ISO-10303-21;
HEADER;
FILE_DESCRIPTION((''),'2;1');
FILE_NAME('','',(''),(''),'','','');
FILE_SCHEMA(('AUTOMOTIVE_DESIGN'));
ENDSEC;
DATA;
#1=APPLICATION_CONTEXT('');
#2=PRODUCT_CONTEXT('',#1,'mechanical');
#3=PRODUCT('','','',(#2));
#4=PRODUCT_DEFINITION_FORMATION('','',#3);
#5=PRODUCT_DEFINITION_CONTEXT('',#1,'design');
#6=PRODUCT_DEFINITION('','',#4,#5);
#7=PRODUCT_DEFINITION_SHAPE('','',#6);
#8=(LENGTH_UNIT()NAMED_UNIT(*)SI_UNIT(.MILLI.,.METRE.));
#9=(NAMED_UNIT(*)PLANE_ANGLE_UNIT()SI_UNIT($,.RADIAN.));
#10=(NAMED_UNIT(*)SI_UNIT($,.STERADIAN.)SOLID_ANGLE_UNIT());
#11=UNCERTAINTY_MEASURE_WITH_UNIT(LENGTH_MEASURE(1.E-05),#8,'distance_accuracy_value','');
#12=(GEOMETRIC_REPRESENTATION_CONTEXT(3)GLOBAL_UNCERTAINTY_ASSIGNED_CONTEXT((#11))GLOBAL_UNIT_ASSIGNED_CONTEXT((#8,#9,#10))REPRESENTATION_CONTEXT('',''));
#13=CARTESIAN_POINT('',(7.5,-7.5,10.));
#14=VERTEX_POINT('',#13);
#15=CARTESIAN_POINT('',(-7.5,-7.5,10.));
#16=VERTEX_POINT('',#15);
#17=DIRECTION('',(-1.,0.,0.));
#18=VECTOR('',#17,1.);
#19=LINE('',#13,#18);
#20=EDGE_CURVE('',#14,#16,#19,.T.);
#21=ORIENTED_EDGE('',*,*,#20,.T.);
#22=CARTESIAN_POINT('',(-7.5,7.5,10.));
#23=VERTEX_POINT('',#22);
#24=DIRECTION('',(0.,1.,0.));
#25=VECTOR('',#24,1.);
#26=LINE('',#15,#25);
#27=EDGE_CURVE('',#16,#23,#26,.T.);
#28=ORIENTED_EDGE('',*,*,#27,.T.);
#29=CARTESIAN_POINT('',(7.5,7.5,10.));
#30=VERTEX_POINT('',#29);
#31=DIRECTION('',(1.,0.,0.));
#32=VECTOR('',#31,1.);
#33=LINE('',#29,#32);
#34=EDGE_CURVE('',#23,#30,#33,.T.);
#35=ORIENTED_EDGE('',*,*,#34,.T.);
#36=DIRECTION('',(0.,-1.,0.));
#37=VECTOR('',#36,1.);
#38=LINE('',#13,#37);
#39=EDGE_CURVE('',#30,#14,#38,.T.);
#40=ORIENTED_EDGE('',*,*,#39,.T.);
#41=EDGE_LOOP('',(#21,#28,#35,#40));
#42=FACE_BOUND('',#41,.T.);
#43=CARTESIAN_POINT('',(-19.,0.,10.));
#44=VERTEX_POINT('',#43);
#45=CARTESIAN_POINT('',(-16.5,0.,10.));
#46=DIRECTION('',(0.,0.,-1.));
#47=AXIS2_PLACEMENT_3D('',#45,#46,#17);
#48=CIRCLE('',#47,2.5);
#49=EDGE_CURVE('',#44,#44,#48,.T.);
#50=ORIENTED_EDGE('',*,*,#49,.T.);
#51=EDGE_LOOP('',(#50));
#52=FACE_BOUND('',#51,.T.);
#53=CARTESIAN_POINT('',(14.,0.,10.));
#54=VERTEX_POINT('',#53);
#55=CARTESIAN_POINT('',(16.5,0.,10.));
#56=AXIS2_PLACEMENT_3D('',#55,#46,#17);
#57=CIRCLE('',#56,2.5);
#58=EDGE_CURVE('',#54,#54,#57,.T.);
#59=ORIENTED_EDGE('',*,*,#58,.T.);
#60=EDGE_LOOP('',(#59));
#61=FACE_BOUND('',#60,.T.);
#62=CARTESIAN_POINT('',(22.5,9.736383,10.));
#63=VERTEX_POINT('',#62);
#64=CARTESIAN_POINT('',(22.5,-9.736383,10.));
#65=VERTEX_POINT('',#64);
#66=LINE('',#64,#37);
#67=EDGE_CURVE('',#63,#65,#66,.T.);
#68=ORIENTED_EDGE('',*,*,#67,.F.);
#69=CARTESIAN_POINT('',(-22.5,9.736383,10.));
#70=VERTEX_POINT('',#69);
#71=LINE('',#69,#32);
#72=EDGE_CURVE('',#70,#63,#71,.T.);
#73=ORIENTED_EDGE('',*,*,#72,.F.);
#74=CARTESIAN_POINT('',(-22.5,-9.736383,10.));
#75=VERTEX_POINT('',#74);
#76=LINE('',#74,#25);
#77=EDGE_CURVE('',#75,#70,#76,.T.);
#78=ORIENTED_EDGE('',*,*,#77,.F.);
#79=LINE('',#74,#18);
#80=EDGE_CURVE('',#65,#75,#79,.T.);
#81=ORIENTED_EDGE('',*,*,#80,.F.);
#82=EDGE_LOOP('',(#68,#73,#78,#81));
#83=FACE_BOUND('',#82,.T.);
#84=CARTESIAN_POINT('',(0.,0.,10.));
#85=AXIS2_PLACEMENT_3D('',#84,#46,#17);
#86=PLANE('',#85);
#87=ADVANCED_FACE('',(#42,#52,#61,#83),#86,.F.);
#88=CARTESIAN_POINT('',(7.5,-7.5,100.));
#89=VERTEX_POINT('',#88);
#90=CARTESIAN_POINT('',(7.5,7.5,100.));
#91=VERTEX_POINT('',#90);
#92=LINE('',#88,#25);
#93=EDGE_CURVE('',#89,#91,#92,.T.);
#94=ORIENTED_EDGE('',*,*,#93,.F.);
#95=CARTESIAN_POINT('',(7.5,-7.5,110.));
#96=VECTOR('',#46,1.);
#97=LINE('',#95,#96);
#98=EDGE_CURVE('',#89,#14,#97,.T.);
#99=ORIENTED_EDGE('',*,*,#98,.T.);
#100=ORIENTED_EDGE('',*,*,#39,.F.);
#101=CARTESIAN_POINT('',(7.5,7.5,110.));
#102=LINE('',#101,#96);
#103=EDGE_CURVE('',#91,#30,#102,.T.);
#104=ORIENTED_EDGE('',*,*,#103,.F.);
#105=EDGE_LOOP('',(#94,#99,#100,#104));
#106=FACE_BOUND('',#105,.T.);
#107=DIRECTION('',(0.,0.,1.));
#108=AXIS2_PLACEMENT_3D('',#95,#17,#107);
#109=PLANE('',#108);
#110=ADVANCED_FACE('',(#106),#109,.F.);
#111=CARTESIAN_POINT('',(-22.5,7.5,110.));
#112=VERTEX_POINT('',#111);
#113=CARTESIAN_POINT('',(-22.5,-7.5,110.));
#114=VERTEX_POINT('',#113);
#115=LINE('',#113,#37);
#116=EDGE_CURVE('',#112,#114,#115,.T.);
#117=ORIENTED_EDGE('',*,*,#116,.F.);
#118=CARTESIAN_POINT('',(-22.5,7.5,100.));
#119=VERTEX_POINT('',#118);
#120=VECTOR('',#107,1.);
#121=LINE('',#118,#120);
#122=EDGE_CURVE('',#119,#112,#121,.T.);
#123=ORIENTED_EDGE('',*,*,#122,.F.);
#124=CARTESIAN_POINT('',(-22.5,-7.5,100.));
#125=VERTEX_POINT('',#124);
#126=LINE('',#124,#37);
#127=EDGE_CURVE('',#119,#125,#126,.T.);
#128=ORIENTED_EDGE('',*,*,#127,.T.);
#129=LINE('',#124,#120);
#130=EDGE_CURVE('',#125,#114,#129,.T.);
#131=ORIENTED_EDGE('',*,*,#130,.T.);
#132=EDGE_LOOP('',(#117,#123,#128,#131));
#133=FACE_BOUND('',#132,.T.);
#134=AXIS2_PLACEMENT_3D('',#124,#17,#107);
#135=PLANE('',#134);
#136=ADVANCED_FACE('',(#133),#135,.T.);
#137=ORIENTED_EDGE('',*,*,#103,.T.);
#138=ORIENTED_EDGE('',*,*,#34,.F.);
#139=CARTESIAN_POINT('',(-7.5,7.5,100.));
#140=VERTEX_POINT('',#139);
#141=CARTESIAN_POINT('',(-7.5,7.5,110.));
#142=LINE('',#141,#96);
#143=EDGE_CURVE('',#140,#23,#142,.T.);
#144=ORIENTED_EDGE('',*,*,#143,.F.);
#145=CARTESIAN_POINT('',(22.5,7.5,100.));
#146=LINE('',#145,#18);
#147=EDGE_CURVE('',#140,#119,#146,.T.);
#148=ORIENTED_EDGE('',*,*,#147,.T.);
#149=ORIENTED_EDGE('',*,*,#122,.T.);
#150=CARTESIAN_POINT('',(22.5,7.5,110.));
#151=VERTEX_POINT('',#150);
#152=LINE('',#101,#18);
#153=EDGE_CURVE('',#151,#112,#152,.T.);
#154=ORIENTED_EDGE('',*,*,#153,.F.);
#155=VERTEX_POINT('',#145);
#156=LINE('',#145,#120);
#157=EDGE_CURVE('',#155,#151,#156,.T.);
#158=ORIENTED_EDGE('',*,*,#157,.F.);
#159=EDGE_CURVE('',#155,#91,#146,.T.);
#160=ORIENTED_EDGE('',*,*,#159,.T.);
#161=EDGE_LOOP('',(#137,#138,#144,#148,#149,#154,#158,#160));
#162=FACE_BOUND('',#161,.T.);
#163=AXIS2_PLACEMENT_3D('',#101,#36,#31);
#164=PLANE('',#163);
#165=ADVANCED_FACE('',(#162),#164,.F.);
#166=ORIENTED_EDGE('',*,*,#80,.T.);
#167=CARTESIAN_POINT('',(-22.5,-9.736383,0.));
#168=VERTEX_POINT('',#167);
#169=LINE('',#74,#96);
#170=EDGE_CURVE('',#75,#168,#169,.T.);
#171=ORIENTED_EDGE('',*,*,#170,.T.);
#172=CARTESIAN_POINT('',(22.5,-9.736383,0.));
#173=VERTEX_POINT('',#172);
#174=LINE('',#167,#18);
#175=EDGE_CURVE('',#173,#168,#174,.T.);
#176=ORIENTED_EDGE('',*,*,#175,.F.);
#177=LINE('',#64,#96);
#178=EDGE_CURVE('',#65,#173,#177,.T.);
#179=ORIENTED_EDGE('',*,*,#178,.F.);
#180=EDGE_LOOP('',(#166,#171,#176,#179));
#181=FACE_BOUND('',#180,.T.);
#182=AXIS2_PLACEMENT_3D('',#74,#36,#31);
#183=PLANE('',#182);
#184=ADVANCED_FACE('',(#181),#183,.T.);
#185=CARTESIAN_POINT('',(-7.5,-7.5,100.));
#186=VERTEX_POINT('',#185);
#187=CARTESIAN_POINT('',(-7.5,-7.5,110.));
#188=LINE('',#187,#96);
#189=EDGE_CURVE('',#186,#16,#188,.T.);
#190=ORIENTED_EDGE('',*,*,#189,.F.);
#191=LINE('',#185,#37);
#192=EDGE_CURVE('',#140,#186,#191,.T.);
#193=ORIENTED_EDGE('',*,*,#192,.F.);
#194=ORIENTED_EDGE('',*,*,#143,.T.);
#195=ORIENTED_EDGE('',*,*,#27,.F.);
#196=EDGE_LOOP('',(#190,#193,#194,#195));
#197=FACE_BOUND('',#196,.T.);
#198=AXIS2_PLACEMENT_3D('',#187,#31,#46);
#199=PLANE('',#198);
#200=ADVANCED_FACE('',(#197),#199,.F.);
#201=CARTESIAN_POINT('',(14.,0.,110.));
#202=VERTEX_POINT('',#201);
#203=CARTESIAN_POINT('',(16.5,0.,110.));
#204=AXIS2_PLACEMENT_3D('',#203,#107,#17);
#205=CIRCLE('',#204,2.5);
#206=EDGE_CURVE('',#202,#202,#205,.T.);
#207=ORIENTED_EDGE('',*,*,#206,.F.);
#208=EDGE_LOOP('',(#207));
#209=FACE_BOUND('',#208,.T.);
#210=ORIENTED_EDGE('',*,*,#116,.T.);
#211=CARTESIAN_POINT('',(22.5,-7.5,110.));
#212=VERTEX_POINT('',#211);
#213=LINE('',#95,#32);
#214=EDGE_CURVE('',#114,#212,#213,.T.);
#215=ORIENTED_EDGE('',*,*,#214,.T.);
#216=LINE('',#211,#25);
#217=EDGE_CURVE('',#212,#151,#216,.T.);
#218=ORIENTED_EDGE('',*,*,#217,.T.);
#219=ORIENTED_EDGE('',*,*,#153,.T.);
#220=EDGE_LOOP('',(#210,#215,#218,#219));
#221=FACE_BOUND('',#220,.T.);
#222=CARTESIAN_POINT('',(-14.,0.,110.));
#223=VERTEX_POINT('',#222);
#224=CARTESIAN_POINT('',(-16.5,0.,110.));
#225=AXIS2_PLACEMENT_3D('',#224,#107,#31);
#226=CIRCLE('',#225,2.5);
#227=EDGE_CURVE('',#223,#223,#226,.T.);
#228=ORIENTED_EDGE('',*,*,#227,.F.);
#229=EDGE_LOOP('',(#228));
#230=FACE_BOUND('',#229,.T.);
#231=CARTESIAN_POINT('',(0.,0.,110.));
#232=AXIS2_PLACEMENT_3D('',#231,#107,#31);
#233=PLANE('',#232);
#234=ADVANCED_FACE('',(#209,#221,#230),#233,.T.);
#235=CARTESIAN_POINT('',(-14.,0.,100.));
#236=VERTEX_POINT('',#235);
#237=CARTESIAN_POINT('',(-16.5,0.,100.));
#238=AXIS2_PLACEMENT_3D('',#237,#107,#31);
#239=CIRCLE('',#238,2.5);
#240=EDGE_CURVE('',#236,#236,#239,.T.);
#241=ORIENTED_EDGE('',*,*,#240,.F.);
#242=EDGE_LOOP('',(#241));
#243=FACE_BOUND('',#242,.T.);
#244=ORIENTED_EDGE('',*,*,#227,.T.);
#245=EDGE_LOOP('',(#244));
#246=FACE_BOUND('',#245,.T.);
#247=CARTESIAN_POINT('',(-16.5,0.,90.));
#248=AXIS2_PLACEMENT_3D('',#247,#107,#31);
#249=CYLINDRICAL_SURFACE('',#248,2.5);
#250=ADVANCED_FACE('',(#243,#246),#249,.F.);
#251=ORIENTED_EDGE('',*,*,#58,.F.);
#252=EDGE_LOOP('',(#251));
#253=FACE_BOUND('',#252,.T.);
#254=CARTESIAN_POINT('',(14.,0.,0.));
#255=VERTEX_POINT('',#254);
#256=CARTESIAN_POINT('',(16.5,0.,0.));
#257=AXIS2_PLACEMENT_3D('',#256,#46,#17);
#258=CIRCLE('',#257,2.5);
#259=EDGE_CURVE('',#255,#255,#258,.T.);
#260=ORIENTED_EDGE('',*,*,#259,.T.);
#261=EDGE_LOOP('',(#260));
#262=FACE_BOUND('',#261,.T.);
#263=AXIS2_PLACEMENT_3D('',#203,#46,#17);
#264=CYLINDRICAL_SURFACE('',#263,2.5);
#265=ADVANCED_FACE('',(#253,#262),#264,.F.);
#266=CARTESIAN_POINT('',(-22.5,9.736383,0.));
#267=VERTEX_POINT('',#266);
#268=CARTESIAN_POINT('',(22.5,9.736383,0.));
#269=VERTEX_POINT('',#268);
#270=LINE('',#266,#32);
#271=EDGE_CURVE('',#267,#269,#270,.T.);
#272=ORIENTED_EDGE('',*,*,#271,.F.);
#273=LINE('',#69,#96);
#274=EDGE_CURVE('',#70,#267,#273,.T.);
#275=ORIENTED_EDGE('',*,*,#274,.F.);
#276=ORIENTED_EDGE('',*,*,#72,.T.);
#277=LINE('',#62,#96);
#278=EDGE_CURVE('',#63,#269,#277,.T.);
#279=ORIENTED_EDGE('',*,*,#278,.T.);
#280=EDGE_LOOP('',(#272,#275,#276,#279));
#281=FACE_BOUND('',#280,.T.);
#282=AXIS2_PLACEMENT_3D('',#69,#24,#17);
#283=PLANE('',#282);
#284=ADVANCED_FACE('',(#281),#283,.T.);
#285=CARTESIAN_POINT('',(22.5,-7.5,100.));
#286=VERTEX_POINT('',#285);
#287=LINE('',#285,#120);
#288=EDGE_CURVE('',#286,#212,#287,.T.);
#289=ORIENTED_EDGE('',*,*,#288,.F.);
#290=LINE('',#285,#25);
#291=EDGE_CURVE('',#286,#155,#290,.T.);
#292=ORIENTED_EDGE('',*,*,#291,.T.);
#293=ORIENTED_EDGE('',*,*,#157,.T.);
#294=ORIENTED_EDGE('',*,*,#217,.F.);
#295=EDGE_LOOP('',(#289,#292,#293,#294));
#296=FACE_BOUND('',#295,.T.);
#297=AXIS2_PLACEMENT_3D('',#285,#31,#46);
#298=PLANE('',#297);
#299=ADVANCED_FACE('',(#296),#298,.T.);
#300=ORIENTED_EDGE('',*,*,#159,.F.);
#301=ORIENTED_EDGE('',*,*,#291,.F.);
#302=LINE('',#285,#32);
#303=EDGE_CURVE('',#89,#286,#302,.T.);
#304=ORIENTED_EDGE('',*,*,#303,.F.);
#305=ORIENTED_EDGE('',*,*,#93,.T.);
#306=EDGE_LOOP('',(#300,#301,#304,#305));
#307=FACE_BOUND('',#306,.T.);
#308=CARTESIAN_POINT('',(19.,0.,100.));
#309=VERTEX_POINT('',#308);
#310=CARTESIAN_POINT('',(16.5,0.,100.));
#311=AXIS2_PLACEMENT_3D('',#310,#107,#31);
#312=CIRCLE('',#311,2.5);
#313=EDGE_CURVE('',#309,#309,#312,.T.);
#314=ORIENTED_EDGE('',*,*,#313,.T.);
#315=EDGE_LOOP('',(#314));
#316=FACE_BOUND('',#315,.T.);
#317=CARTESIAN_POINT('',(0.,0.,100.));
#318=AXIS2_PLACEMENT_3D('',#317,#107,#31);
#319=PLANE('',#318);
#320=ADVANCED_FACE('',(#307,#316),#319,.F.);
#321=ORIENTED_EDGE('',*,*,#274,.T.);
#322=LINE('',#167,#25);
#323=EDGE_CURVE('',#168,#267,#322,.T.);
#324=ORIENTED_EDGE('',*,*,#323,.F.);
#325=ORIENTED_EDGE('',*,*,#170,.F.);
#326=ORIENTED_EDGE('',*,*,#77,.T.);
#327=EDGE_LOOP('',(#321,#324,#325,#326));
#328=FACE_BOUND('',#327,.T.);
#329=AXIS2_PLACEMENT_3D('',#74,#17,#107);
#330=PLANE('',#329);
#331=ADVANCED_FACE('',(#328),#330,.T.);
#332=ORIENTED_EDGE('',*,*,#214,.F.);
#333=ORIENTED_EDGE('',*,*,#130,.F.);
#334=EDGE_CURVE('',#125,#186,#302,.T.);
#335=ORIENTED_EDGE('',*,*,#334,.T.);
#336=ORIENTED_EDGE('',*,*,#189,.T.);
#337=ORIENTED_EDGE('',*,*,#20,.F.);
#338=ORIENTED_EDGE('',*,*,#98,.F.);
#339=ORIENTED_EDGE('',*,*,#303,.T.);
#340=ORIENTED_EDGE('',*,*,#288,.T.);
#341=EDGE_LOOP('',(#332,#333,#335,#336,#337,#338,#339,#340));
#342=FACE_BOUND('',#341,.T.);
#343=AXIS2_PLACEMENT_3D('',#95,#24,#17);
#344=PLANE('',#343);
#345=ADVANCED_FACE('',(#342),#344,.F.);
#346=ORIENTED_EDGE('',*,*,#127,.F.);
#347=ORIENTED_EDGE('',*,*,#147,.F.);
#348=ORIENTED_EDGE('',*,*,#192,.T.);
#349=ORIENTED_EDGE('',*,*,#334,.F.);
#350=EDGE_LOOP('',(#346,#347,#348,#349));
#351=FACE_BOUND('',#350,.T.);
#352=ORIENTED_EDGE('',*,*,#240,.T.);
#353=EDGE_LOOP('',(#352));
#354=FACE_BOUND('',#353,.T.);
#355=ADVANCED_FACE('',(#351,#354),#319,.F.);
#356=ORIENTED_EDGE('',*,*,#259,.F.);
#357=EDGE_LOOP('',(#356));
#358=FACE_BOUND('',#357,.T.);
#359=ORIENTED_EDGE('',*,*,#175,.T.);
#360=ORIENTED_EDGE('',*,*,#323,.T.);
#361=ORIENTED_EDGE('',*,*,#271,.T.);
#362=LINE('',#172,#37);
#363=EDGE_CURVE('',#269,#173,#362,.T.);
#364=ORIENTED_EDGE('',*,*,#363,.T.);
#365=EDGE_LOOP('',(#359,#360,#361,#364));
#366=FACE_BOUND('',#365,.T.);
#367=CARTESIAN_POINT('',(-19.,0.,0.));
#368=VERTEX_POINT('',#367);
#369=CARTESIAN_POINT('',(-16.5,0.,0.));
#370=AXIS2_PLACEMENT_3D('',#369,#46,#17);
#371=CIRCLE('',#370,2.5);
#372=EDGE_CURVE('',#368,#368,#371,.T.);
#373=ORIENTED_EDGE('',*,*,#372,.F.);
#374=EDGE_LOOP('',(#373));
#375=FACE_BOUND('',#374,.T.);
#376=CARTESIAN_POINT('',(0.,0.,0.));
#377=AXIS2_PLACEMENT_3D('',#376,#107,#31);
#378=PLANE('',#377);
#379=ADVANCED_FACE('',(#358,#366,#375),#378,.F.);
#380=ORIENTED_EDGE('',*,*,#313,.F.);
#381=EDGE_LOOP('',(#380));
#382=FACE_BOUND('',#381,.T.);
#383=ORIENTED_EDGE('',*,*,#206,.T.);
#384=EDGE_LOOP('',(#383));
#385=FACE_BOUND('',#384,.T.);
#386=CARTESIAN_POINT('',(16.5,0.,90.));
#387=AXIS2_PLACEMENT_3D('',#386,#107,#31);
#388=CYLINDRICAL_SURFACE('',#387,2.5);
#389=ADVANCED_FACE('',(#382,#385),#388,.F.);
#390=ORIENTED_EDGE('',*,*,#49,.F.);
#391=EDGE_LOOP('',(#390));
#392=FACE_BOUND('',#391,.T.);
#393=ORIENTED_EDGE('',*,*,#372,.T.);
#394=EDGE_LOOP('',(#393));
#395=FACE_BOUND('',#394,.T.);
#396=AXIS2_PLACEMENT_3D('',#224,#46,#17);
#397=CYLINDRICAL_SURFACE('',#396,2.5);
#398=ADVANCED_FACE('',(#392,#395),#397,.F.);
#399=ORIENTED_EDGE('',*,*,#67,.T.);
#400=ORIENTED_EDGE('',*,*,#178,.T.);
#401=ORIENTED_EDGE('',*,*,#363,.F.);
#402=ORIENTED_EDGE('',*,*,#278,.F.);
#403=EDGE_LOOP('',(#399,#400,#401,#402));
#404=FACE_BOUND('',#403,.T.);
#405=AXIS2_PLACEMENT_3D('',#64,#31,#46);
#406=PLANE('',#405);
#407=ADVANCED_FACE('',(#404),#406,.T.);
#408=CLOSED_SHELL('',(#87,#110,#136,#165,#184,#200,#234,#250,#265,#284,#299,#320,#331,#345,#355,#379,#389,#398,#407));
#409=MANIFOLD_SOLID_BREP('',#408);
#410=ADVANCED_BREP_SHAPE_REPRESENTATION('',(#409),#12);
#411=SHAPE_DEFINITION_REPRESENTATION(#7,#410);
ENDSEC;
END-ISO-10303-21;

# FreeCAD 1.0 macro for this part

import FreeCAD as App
import Part
import Sketcher
from FreeCAD import Vector

doc = App.newDocument("Part")
body = doc.addObject("PartDesign::Body", "Body")

# Sketch on XY plane
sketch1 = body.newObject("Sketcher::SketchObject", "Sketch")
sketch1.AttachmentSupport = (doc.getObject("XY_Plane"), [""])
sketch1.MapMode = "FlatFace"
sketch1.addGeometry([
    Part.LineSegment(Vector(-8, 8, 0), Vector(-8, -8, 0)),
    Part.LineSegment(Vector(-8, -8, 0), Vector(8, -8, 0)),
    Part.LineSegment(Vector(8, -8, 0), Vector(8, 8, 0)),
    Part.LineSegment(Vector(8, 8, 0), Vector(-8, 8, 0)),
], False)
sketch1.addConstraint([
    Sketcher.Constraint("Coincident", 0, 2, 1, 1),
    Sketcher.Constraint("Coincident", 1, 2, 2, 1),
    Sketcher.Constraint("Coincident", 2, 2, 3, 1),
    Sketcher.Constraint("Coincident", 3, 2, 0, 1),
    Sketcher.Constraint("Vertical", 0),
    Sketcher.Constraint("Horizontal", 1),
    Sketcher.Constraint("Vertical", 2),
    Sketcher.Constraint("Horizontal", 3),
    Sketcher.Constraint("Symmetric", 0, 2, 2, 2, -1, 1),
    Sketcher.Constraint("Equal", 3, 0),
    Sketcher.Constraint("DistanceX", 1, 1, 1, 2, 15.0),
])
pad1 = body.newObject("PartDesign::Pad", "Pad")
pad1.Profile = sketch1
pad1.Length = 110

# Sketch on XY plane
sketch2 = body.newObject("Sketcher::SketchObject", "Sketch001")
sketch2.AttachmentSupport = (doc.getObject("XY_Plane"), [""])
sketch2.MapMode = "FlatFace"
sketch2.AttachmentOffset = App.Placement(Vector(0, 0, 110), App.Rotation())
sketch2.addGeometry([
    Part.LineSegment(Vector(-22, 8, 0), Vector(-22, -8, 0)),
    Part.LineSegment(Vector(-22, -8, 0), Vector(22, -8, 0)),
    Part.LineSegment(Vector(22, -8, 0), Vector(22, 8, 0)),
    Part.LineSegment(Vector(22, 8, 0), Vector(-22, 8, 0)),
], False)
sketch2.addConstraint([
    Sketcher.Constraint("Coincident", 0, 2, 1, 1),
    Sketcher.Constraint("Coincident", 1, 2, 2, 1),
    Sketcher.Constraint("Coincident", 2, 2, 3, 1),
    Sketcher.Constraint("Coincident", 3, 2, 0, 1),
    Sketcher.Constraint("Vertical", 0),
    Sketcher.Constraint("Horizontal", 1),
    Sketcher.Constraint("Vertical", 2),
    Sketcher.Constraint("Horizontal", 3),
    Sketcher.Constraint("Symmetric", 0, 2, 2, 2, -1, 1),
    Sketcher.Constraint("DistanceX", 1, 1, 1, 2, 45.0),
    Sketcher.Constraint("DistanceY", 0, 2, 0, 1, 15.0),
])
pad2 = body.newObject("PartDesign::Pad", "Pad001")
pad2.Profile = sketch2
pad2.Length = 10
pad2.Reversed = True

# Sketch on XY plane
sketch3 = body.newObject("Sketcher::SketchObject", "Sketch002")
sketch3.AttachmentSupport = (doc.getObject("XY_Plane"), [""])
sketch3.MapMode = "FlatFace"
sketch3.AttachmentOffset = App.Placement(Vector(0, 0, 110), App.Rotation())
sketch3.addGeometry([
    Part.Circle(Vector(-16.5, 0, 0), Vector(0, 0, 1), 2.5),
    Part.Circle(Vector(16.5, 0, 0), Vector(0, 0, 1), 2.5),
], False)
sketch3.addConstraint([
    Sketcher.Constraint("Equal", 0, 1),
    Sketcher.Constraint("Symmetric", 0, 3, 1, 3, -1, 1),
    Sketcher.Constraint("PointOnObject", 0, 3, -1),
    Sketcher.Constraint("Diameter", 0, 5.0),
    Sketcher.Constraint("DistanceX", 0, 3, 1, 3, 33.0),
])
pocket1 = body.newObject("PartDesign::Pocket", "Pocket")
pocket1.Profile = sketch3
pocket1.Length = 20

# Sketch on XY plane
sketch4 = body.newObject("Sketcher::SketchObject", "Sketch003")
sketch4.AttachmentSupport = (doc.getObject("XY_Plane"), [""])
sketch4.MapMode = "FlatFace"
sketch4.addGeometry([
    Part.LineSegment(Vector(22, 10, 0), Vector(22, -10, 0)),
    Part.LineSegment(Vector(22, -10, 0), Vector(-22, -10, 0)),
    Part.LineSegment(Vector(-22, -10, 0), Vector(-22, 10, 0)),
    Part.LineSegment(Vector(-22, 10, 0), Vector(22, 10, 0)),
], False)
sketch4.addConstraint([
    Sketcher.Constraint("Coincident", 0, 2, 1, 1),
    Sketcher.Constraint("Coincident", 1, 2, 2, 1),
    Sketcher.Constraint("Coincident", 2, 2, 3, 1),
    Sketcher.Constraint("Coincident", 3, 2, 0, 1),
    Sketcher.Constraint("Vertical", 0),
    Sketcher.Constraint("Horizontal", 1),
    Sketcher.Constraint("Vertical", 2),
    Sketcher.Constraint("Horizontal", 3),
    Sketcher.Constraint("Symmetric", 0, 2, 2, 2, -1, 1),
    Sketcher.Constraint("DistanceX", 1, 2, 1, 1, 45.0),
    Sketcher.Constraint("DistanceY", 0, 2, 0, 1, 19.472766),
])
pad3 = body.newObject("PartDesign::Pad", "Pad002")
pad3.Profile = sketch4
pad3.Length = 10

# Sketch on XY plane
sketch5 = body.newObject("Sketcher::SketchObject", "Sketch004")
sketch5.AttachmentSupport = (doc.getObject("XY_Plane"), [""])
sketch5.MapMode = "FlatFace"
sketch5.addGeometry([
    Part.Circle(Vector(16.5, 0, 0), Vector(0, 0, 1), 2.5),
    Part.Circle(Vector(-16.5, 0, 0), Vector(0, 0, 1), 2.5),
], False)
sketch5.addConstraint([
    Sketcher.Constraint("Equal", 0, 1),
    Sketcher.Constraint("Symmetric", 0, 3, 1, 3, -1, 1),
    Sketcher.Constraint("PointOnObject", 0, 3, -1),
    Sketcher.Constraint("Diameter", 0, 5.0),
    Sketcher.Constraint("DistanceX", 1, 3, 0, 3, 33.0),
])
pocket2 = body.newObject("PartDesign::Pocket", "Pocket001")
pocket2.Profile = sketch5
pocket2.Type = "ThroughAll"
pocket2.Reversed = True

doc.recompute()
